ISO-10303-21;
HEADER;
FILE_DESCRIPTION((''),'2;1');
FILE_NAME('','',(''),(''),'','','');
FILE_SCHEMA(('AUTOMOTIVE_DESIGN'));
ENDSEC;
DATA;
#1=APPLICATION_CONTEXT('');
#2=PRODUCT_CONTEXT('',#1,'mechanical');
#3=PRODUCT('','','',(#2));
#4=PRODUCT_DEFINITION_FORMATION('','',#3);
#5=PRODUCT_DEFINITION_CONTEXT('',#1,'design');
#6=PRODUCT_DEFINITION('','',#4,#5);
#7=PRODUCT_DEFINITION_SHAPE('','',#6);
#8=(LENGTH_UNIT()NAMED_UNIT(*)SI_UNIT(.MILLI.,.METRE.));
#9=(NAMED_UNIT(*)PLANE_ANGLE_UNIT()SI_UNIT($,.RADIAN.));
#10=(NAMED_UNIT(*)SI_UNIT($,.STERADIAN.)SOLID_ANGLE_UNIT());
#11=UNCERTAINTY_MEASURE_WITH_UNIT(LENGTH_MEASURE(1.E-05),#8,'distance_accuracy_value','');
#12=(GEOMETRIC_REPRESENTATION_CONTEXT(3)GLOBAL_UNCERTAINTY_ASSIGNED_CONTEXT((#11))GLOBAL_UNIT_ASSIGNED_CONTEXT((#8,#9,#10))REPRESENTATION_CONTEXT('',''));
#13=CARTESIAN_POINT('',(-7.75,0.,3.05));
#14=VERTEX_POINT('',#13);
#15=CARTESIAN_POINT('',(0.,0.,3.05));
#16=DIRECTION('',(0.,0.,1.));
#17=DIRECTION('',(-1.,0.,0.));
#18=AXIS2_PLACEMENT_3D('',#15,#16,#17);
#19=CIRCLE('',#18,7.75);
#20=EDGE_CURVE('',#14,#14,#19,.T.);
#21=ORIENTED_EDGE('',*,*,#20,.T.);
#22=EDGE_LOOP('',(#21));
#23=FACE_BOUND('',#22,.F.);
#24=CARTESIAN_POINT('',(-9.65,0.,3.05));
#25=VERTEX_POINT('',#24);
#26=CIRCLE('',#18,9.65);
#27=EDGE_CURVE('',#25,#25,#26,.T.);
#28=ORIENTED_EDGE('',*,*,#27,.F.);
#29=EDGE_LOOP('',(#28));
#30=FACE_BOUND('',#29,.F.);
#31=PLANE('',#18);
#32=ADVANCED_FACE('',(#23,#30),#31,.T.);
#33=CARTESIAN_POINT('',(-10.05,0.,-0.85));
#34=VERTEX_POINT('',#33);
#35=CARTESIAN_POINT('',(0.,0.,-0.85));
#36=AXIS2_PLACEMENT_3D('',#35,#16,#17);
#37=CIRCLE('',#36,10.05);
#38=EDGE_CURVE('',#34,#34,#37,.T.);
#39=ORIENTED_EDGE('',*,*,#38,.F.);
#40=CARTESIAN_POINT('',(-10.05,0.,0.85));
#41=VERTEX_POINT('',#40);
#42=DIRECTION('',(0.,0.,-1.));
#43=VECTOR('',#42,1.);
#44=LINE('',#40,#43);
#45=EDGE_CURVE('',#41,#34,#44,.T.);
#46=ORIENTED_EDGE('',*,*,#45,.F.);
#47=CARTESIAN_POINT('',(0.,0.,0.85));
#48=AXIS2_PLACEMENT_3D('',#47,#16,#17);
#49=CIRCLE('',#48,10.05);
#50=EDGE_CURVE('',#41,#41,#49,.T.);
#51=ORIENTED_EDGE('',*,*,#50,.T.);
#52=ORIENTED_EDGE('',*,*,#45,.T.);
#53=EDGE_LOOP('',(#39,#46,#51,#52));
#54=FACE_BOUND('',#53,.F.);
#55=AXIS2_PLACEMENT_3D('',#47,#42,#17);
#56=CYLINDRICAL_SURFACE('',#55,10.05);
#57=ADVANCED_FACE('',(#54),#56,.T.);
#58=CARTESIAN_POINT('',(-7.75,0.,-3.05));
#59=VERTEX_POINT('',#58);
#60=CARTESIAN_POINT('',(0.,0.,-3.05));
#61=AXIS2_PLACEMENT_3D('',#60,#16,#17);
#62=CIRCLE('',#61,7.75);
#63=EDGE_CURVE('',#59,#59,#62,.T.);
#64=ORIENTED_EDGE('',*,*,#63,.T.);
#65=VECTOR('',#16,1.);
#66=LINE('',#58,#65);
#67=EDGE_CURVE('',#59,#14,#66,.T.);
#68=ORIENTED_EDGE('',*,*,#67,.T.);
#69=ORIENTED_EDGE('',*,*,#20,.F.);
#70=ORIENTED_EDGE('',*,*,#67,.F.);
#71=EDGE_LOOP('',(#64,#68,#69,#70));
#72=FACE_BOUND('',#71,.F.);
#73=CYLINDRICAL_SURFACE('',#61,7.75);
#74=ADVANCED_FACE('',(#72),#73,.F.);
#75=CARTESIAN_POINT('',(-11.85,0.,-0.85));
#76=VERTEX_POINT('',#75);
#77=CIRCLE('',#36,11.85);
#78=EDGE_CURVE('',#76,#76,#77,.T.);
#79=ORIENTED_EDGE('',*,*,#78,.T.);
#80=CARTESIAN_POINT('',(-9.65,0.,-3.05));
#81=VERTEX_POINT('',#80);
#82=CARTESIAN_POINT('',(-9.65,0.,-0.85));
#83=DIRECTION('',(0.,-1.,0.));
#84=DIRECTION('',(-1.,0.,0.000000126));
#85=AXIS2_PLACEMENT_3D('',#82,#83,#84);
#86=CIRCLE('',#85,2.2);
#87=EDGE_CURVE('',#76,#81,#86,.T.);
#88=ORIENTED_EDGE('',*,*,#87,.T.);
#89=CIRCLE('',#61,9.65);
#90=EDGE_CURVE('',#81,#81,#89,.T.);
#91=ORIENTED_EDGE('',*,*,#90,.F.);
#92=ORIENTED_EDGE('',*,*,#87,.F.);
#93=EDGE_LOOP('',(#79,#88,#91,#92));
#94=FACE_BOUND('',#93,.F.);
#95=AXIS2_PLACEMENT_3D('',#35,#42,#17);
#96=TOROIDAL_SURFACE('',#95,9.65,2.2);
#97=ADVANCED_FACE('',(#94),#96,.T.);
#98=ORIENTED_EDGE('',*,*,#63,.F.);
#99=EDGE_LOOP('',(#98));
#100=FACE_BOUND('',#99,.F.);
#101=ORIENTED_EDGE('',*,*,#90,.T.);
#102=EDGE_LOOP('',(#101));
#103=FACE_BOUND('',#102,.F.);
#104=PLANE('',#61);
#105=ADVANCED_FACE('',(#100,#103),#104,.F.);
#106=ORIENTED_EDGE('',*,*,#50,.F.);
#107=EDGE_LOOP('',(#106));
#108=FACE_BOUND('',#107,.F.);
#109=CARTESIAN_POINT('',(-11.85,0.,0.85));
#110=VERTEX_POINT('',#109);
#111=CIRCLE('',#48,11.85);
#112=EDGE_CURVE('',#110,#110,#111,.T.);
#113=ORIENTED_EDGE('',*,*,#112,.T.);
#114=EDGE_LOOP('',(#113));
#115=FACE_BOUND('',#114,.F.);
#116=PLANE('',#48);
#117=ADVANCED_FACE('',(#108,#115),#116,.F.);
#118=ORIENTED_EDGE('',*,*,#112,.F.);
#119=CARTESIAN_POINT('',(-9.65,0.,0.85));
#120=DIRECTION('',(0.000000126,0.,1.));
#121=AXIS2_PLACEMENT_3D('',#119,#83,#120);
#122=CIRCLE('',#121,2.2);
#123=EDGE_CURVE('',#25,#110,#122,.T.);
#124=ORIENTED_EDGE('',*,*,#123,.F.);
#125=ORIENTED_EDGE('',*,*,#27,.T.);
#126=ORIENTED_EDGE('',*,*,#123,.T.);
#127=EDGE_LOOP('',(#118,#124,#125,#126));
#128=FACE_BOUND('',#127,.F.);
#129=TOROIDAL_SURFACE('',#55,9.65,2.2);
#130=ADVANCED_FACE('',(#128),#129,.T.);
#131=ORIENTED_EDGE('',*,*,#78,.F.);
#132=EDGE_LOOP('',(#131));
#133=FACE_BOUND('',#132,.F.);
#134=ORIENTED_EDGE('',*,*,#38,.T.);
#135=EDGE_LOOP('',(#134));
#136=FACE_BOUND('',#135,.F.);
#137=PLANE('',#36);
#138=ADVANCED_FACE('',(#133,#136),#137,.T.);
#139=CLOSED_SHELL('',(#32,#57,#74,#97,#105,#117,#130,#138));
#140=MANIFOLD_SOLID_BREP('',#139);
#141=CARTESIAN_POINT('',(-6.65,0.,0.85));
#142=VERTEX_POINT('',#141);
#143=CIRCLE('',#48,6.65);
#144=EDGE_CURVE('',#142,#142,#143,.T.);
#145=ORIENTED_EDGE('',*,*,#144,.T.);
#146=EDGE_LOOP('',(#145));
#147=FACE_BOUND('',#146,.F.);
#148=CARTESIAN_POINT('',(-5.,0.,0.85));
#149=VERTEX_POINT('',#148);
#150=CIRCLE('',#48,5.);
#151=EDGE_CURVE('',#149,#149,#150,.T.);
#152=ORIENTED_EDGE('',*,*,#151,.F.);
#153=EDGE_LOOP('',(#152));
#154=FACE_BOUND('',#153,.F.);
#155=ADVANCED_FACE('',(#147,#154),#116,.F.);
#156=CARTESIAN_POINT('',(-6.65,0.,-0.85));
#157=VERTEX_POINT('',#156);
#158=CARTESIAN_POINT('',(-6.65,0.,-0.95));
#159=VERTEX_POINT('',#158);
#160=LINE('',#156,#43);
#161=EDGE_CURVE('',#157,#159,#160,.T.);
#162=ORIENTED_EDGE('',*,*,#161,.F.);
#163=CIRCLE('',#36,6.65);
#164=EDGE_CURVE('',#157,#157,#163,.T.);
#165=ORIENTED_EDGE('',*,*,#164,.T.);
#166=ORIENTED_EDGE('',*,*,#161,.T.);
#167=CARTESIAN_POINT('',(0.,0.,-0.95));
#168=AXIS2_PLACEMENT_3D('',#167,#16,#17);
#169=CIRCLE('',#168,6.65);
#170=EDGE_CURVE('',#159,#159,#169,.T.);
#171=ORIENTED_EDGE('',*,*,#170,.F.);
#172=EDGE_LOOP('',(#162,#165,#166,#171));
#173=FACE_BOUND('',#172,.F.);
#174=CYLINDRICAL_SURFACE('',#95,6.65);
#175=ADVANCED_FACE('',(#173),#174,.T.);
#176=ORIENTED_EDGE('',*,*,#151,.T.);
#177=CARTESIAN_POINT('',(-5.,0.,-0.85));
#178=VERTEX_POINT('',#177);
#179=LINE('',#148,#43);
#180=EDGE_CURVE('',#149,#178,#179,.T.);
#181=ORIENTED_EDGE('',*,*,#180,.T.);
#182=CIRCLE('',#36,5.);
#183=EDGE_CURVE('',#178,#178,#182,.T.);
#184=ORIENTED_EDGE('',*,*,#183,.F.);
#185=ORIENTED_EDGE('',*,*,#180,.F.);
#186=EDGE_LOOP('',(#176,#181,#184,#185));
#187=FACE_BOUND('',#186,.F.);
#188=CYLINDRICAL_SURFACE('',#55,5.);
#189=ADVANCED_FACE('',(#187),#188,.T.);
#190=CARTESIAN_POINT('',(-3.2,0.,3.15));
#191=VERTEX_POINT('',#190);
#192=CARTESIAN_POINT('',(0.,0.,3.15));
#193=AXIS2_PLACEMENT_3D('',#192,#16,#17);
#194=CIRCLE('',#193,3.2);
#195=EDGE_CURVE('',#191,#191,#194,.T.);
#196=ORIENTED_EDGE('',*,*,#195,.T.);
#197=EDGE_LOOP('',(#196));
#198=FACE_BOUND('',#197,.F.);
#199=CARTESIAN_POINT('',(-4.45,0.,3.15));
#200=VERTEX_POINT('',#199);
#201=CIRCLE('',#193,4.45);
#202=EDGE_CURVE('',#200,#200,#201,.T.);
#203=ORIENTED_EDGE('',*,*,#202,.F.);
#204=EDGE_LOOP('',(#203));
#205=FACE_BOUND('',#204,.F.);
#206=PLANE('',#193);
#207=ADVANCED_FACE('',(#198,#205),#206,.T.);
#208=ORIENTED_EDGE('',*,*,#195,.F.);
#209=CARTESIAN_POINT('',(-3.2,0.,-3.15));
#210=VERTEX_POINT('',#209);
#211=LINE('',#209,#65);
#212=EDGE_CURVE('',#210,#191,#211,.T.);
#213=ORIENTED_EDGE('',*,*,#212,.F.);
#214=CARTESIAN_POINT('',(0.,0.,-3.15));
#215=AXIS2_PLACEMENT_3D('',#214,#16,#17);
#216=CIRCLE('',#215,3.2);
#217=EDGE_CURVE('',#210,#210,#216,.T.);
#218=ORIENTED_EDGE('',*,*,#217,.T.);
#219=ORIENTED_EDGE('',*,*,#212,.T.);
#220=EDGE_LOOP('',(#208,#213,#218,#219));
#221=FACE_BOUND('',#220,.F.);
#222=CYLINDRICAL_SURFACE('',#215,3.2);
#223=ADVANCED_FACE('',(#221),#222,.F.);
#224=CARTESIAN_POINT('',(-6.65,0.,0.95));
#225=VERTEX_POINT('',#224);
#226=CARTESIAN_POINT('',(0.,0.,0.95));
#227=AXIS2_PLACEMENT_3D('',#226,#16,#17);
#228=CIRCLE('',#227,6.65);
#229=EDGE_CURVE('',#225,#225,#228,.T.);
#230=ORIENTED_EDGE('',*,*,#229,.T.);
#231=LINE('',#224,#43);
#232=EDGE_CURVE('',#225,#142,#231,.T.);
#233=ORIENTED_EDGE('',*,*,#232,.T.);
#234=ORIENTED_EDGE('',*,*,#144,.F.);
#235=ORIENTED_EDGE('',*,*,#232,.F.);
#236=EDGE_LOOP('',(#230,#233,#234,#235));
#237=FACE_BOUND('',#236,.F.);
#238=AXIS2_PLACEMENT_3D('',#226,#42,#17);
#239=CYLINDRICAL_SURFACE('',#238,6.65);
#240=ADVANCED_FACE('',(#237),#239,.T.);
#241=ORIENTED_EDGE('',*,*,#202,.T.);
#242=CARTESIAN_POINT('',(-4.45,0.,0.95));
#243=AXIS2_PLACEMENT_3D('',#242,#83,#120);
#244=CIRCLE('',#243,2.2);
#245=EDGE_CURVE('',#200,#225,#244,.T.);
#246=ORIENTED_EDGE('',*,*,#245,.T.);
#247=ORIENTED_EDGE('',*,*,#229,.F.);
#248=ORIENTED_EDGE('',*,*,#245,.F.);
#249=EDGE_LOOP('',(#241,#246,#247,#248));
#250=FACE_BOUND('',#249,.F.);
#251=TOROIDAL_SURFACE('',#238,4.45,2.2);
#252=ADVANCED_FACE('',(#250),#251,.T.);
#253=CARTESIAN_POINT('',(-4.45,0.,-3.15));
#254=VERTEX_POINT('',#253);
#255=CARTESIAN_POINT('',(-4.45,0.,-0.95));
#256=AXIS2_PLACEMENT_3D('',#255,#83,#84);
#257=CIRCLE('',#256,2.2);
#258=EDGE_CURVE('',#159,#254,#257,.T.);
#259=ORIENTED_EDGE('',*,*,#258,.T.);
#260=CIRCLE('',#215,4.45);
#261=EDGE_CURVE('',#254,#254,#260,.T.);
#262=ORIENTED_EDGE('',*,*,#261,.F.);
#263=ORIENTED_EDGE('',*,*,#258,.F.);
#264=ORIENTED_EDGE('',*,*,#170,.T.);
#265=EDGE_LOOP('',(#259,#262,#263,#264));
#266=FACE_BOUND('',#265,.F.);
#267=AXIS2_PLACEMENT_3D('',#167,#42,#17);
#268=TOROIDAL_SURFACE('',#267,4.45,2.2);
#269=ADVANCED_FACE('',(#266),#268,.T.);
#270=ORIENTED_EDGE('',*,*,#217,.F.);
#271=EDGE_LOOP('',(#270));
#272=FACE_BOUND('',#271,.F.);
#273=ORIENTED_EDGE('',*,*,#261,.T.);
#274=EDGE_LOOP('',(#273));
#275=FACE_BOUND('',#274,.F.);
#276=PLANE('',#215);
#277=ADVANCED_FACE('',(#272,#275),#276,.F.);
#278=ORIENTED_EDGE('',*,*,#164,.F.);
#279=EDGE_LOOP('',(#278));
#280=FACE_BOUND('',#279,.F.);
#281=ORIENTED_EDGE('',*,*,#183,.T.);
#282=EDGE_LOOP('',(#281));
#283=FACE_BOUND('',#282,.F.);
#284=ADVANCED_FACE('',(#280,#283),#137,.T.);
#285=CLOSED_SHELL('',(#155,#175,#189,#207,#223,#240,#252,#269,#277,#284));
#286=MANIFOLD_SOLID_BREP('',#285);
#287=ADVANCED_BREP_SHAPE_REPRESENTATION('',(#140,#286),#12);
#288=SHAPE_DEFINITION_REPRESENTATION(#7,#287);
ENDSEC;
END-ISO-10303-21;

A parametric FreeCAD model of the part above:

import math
import FreeCAD as App
import Part
import Sketcher

doc = App.newDocument("Part")
body = doc.addObject("PartDesign::Body", "Body")

# Sketch on XZ plane
sketch1 = body.newObject("Sketcher::SketchObject", "Sketch")
sketch1.AttachmentSupport = (doc.getObject("XZ_Plane"), [""])
sketch1.MapMode = "FlatFace"
sketch1.addGeometry([
    Part.LineSegment(App.Vector(-7.75, -3.05, 0), App.Vector(-7.75, 3.05, 0)),  # 0
    Part.LineSegment(App.Vector(-7.75, 3.05, 0), App.Vector(-9.65, 3.05, 0)),  # 1
    Part.ArcOfCircle(Part.Circle(App.Vector(-9.65, 0.85, 0), App.Vector(0, 0, 1), 2.2), math.radians(89.999993), math.radians(180.000007)),  # 2
    Part.LineSegment(App.Vector(-11.85, 0.85, 0), App.Vector(-10.05, 0.85, 0)),  # 3
    Part.LineSegment(App.Vector(-10.05, 0.85, 0), App.Vector(-10.05, -0.85, 0)),  # 4
    Part.LineSegment(App.Vector(-10.05, -0.85, 0), App.Vector(-11.85, -0.85, 0)),  # 5
    Part.ArcOfCircle(Part.Circle(App.Vector(-9.65, -0.85, 0), App.Vector(0, 0, 1), 2.2), math.radians(179.999993), math.radians(270.000007)),  # 6
    Part.LineSegment(App.Vector(-9.65, -3.05, 0), App.Vector(-7.75, -3.05, 0)),  # 7
], False)
sketch1.addConstraint([
    Sketcher.Constraint("Coincident", 0, 2, 1, 1),
    Sketcher.Constraint("Tangent", 1, 2, 2, 1),
    Sketcher.Constraint("Coincident", 2, 2, 3, 1),
    Sketcher.Constraint("Coincident", 3, 2, 4, 1),
    Sketcher.Constraint("Coincident", 4, 2, 5, 1),
    Sketcher.Constraint("Coincident", 5, 2, 6, 1),
    Sketcher.Constraint("Tangent", 6, 2, 7, 1),
    Sketcher.Constraint("Coincident", 7, 2, 0, 1),
    Sketcher.Constraint("Vertical", 0),
    Sketcher.Constraint("Horizontal", 1),
    Sketcher.Constraint("Horizontal", 3),
    Sketcher.Constraint("Vertical", 4),
    Sketcher.Constraint("Horizontal", 5),
    Sketcher.Constraint("Horizontal", 7),
    Sketcher.Constraint("Equal", 2, 6),
    Sketcher.Constraint("Symmetric", 2, 3, 6, 3, -1),
    Sketcher.Constraint("Horizontal", 6, 3, 4, 2),
    Sketcher.Constraint("Radius", 2, 2.2),
    Sketcher.Constraint("DistanceX", 1, 2, 1, 1, 1.9),
    Sketcher.Constraint("DistanceX", 3, 1, 3, 2, 1.8),
    Sketcher.Constraint("DistanceY", 0, 1, 0, 2, 6.1),
    Sketcher.Constraint("DistanceY", 4, 2, 4, 1, 1.7),
    Sketcher.Constraint("DistanceX", 2, 3, -1, 1, 9.65),
])
revolution = body.newObject("PartDesign::Revolution", "Revolution")
revolution.Profile = sketch1
revolution.ReferenceAxis = (sketch1, ["V_Axis"])
revolution.Angle = 360
body2 = doc.addObject("PartDesign::Body", "Body001")

# Sketch on XZ plane
sketch2 = body2.newObject("Sketcher::SketchObject", "Sketch001")
sketch2.AttachmentSupport = (doc.getObject("XZ_Plane001"), [""])
sketch2.MapMode = "FlatFace"
sketch2.addGeometry([
    Part.LineSegment(App.Vector(-3.2, -3.15, 0), App.Vector(-3.2, 3.15, 0)),  # 0
    Part.LineSegment(App.Vector(-3.2, 3.15, 0), App.Vector(-4.45, 3.15, 0)),  # 1
    Part.ArcOfCircle(Part.Circle(App.Vector(-4.45, 0.95, 0), App.Vector(0, 0, 1), 2.2), math.radians(89.999993), math.radians(180.000007)),  # 2
    Part.LineSegment(App.Vector(-6.65, 0.95, 0), App.Vector(-6.65, 0.85, 0)),  # 3
    Part.LineSegment(App.Vector(-6.65, 0.85, 0), App.Vector(-5, 0.85, 0)),  # 4
    Part.LineSegment(App.Vector(-5, 0.85, 0), App.Vector(-5, -0.85, 0)),  # 5
    Part.LineSegment(App.Vector(-5, -0.85, 0), App.Vector(-6.65, -0.85, 0)),  # 6
    Part.LineSegment(App.Vector(-6.65, -0.85, 0), App.Vector(-6.65, -0.95, 0)),  # 7
    Part.ArcOfCircle(Part.Circle(App.Vector(-4.45, -0.95, 0), App.Vector(0, 0, 1), 2.2), math.radians(179.999993), math.radians(270.000007)),  # 8
    Part.LineSegment(App.Vector(-4.45, -3.15, 0), App.Vector(-3.2, -3.15, 0)),  # 9
], False)
sketch2.addConstraint([
    Sketcher.Constraint("Coincident", 0, 2, 1, 1),
    Sketcher.Constraint("Tangent", 1, 2, 2, 1),
    Sketcher.Constraint("Tangent", 2, 2, 3, 1),
    Sketcher.Constraint("Coincident", 3, 2, 4, 1),
    Sketcher.Constraint("Coincident", 4, 2, 5, 1),
    Sketcher.Constraint("Coincident", 5, 2, 6, 1),
    Sketcher.Constraint("Coincident", 6, 2, 7, 1),
    Sketcher.Constraint("Tangent", 7, 2, 8, 1),
    Sketcher.Constraint("Tangent", 8, 2, 9, 1),
    Sketcher.Constraint("Coincident", 9, 2, 0, 1),
    Sketcher.Constraint("Vertical", 0),
    Sketcher.Constraint("Horizontal", 1),
    Sketcher.Constraint("Vertical", 3),
    Sketcher.Constraint("Horizontal", 4),
    Sketcher.Constraint("Vertical", 5),
    Sketcher.Constraint("Horizontal", 6),
    Sketcher.Constraint("Vertical", 7),
    Sketcher.Constraint("Horizontal", 9),
    Sketcher.Constraint("Equal", 2, 8),
    Sketcher.Constraint("Symmetric", 2, 3, 8, 3, -1),
    Sketcher.Constraint("Equal", 3, 7),
    Sketcher.Constraint("Radius", 2, 2.2),
    Sketcher.Constraint("DistanceY", 0, 1, 0, 2, 6.3),
    Sketcher.Constraint("DistanceY", 3, 2, 3, 1, 0.1),
    Sketcher.Constraint("DistanceX", 4, 2, -1, 1, 5.0),
    Sketcher.Constraint("DistanceX", 1, 2, 1, 1, 1.25),
    Sketcher.Constraint("DistanceX", 4, 1, 4, 2, 1.65),
])
revolution2 = body2.newObject("PartDesign::Revolution", "Revolution001")
revolution2.Profile = sketch2
revolution2.ReferenceAxis = (sketch2, ["V_Axis"])
revolution2.Angle = 360

doc.recompute()
